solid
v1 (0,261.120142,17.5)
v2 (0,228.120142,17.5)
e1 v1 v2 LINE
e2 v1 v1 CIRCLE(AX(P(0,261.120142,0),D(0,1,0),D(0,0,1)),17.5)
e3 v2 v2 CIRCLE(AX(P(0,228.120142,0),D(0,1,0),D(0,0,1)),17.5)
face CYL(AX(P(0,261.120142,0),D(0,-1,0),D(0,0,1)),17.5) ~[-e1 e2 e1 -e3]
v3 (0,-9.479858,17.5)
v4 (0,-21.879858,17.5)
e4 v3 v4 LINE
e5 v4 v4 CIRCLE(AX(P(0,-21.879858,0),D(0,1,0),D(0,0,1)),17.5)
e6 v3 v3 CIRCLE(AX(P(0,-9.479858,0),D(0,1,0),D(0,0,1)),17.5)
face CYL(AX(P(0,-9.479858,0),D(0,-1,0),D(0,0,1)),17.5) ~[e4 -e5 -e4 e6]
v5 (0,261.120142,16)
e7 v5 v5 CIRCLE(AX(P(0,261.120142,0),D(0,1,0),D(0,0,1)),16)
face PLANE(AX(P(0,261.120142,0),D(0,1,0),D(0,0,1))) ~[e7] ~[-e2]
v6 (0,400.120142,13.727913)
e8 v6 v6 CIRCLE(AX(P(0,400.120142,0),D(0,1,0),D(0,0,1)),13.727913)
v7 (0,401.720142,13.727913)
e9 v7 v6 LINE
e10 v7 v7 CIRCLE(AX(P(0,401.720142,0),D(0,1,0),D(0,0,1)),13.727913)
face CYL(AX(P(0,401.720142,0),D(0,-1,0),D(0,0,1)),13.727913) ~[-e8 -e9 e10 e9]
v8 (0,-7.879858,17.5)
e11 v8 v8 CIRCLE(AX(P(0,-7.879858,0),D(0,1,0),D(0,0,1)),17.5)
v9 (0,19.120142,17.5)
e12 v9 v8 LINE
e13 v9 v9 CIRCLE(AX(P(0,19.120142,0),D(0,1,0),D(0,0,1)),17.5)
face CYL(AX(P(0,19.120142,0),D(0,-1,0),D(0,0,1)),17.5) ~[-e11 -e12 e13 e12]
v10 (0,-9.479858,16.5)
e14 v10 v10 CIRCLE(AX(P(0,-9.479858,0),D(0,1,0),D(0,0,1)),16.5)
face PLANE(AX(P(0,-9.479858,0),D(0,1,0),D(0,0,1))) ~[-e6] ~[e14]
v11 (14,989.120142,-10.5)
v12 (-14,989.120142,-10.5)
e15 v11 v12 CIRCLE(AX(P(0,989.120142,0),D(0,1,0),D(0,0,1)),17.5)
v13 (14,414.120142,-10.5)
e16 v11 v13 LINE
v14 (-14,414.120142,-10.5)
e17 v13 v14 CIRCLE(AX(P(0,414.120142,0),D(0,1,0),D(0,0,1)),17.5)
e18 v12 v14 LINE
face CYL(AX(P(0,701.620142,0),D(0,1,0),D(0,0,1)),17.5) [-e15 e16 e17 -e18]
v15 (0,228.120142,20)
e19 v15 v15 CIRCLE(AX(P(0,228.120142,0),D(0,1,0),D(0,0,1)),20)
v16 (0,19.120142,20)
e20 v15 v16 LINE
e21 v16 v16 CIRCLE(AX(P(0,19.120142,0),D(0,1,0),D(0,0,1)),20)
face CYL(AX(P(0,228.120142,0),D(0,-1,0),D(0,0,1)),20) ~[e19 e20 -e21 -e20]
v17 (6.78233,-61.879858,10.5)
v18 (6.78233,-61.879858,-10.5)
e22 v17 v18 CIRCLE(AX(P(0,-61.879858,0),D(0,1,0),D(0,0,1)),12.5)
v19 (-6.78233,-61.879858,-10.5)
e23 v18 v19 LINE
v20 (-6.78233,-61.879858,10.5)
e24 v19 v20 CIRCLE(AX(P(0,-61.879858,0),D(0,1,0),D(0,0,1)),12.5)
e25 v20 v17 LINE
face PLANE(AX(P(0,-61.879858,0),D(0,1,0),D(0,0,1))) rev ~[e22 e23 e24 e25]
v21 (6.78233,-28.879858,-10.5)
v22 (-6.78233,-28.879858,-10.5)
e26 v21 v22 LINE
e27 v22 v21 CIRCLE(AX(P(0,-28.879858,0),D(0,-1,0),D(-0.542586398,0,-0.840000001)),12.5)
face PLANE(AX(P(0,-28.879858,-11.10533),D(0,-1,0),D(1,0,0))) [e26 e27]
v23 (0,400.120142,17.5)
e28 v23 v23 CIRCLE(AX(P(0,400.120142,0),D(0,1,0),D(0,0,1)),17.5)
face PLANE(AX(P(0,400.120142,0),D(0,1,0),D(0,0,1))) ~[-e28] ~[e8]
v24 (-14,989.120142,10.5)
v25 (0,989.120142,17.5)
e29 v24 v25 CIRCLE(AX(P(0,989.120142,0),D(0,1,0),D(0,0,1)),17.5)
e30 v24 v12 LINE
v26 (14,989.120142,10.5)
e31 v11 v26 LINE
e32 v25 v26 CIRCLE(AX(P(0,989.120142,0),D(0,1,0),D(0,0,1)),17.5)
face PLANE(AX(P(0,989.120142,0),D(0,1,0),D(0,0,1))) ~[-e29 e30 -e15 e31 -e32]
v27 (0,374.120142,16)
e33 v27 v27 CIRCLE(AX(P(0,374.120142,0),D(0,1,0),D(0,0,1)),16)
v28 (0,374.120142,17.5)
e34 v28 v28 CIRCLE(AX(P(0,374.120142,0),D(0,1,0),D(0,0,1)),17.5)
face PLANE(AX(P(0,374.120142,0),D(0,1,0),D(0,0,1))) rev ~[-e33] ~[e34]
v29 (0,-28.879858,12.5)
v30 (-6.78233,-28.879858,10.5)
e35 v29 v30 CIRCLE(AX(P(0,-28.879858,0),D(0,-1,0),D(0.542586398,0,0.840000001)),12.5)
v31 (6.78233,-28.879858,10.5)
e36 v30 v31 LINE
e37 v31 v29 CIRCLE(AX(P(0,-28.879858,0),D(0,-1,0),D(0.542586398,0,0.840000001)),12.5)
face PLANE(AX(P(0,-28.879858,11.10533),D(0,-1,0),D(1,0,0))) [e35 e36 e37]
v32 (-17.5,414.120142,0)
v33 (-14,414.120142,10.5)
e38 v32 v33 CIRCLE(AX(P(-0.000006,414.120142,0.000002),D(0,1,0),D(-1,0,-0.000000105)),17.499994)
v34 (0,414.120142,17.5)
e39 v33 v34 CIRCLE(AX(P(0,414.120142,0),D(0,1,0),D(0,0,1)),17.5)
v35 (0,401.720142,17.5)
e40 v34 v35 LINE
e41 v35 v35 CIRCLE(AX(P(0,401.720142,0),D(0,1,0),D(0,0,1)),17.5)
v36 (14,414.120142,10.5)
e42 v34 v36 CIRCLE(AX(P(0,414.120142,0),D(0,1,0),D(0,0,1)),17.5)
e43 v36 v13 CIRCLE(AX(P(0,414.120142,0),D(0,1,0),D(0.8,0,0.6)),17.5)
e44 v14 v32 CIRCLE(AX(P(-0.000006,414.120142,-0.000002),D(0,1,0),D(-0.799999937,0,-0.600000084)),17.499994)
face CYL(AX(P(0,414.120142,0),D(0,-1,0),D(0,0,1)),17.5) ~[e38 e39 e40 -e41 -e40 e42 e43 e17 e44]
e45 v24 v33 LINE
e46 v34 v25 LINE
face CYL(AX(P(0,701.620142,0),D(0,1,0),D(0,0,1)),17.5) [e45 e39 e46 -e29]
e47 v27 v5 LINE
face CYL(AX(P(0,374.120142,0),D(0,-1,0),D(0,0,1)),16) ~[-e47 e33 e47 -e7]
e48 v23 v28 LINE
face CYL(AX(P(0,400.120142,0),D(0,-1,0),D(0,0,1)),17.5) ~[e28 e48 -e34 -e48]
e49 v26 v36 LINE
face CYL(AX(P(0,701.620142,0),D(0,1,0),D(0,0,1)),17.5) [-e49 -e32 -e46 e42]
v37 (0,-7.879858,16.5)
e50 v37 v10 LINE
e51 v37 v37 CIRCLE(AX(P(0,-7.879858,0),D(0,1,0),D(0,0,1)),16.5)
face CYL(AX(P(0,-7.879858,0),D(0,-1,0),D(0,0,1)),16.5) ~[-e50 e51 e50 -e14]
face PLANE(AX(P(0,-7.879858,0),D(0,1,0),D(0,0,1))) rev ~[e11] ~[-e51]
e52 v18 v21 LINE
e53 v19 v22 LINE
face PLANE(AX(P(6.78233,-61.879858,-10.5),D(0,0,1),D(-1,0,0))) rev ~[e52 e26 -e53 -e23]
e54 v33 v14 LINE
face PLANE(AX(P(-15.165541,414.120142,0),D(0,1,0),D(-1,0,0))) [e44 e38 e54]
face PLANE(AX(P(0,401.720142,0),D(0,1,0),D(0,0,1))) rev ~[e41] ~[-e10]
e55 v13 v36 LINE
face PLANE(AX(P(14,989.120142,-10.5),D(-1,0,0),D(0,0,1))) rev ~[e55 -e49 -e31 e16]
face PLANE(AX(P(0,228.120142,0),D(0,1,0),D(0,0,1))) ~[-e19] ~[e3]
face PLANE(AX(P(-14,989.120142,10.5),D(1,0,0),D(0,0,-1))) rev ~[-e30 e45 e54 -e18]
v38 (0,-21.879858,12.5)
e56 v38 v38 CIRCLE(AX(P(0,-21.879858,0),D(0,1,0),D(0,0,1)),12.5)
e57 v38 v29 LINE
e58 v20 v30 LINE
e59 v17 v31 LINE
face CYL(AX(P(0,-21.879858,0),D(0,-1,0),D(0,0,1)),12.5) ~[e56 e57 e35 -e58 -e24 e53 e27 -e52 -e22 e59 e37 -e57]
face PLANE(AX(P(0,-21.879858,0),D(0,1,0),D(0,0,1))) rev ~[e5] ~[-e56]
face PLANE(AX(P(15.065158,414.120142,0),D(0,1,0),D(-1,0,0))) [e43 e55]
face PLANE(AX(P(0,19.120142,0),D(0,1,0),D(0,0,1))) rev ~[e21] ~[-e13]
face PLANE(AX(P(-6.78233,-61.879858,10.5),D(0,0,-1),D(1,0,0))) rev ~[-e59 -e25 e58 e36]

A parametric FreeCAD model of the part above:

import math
import FreeCAD as App
import Part
import Sketcher
Q = App.Units.Quantity


def add_polygon(sketch, points):
    """Adds a closed chain of lines whose ends are joined by coincident constraints."""
    first, n = sketch.GeometryCount, len(points)
    for a, b in zip(points, points[1:] + points[:1]):
        sketch.addGeometry(Part.LineSegment(App.Vector(*a, 0), App.Vector(*b, 0)), False)
    for i in range(n):
        sketch.addConstraint(Sketcher.Constraint("Coincident", first + i, 2, first + (i + 1) % n, 1))

doc = App.newDocument("Part")
params = doc.addObject("Spreadsheet::Sheet", "Params")
for row, (alias, value) in enumerate([
    ("sketch1_width", "40 mm"),
    ("sketch1_width2", "81 mm"),
    ("sketch1_width3", "27 mm"),
    ("sketch1_height", "5 mm"),
    ("sketch1_height2", "1 mm"),
    ("revolution_angle", "360 deg"),
    ("sketch2_radius", "12.5 mm"),
    ("pocket1_length", "33 mm"),
    ("sketch3_width", "395 mm"),
    ("sketch3_width2", "26 mm"),
    ("sketch3_width3", "113 mm"),
    ("sketch3_width4", "33 mm"),
    ("sketch3_width5", "209 mm"),
    ("revolution2_angle", "360 deg"),
    ("sketch4_width", "575 mm"),
    ("sketch4_height", "17.5 mm"),
    ("revolution3_angle", "360 deg"),
    ("sketch5_radius", "17.5 mm"),
    ("sketch5_height", "21 mm"),
    ("pocket2_length", "575 mm"),
], start=1):
    params.set(f"A{row}", alias)
    params.set(f"B{row}", "=" + value)
    params.setAlias(f"B{row}", alias)

body = doc.addObject("PartDesign::Body", "Body")

# Sketch on YZ plane
sketch1 = body.newObject("Sketcher::SketchObject", "Sketch")
sketch1.AttachmentSupport = (doc.getObject("YZ_Plane"), [""])
sketch1.MapMode = "FlatFace"
add_polygon(sketch1, [(-9.479858, 17.5), (-21.879858, 17.5), (-21.879858, 12.5), (-61.879858, 12.5), (-61.879858, 0), (19.120142, 0), (19.120142, 17.5), (-7.879858, 17.5), (-7.879858, 16.5), (-9.479858, 16.5)])  # lines 0-9
sketch1.addConstraint([
    Sketcher.Constraint("Horizontal", 0),
    Sketcher.Constraint("Vertical", 1),
    Sketcher.Constraint("Horizontal", 2),
    Sketcher.Constraint("Vertical", 3),
    Sketcher.Constraint("Horizontal", 4),
    Sketcher.Constraint("Vertical", 5),
    Sketcher.Constraint("Horizontal", 6),
    Sketcher.Constraint("Vertical", 7),
    Sketcher.Constraint("Horizontal", 8),
    Sketcher.Constraint("Vertical", 9),
    Sketcher.Constraint("PointOnObject", 3, 2, -1),
    Sketcher.Constraint("Horizontal", 0, 2, 5, 2),
    Sketcher.Constraint("DistanceX", 2, 2, 2, 1, Q("40 mm")),
    Sketcher.Constraint("DistanceX", 4, 1, 4, 2, Q("81 mm")),
    Sketcher.Constraint("DistanceX", 6, 2, 6, 1, Q("27 mm")),
    Sketcher.Constraint("DistanceY", 1, 2, 1, 1, Q("5 mm")),
    Sketcher.Constraint("DistanceY", 7, 2, 7, 1, Q("1 mm")),
    Sketcher.Constraint("DistanceX", 0, 2, 0, 1, Q("12.4 mm")),
    Sketcher.Constraint("DistanceY", 3, 2, 3, 1, Q("12.5 mm")),
    Sketcher.Constraint("DistanceX", 0, 2, -1, 1, Q("21.879858 mm")),
])
sketch1.setExpression("Constraints[22]", "Params.sketch1_width")
sketch1.setExpression("Constraints[23]", "Params.sketch1_width2")
sketch1.setExpression("Constraints[24]", "Params.sketch1_width3")
sketch1.setExpression("Constraints[25]", "Params.sketch1_height")
sketch1.setExpression("Constraints[26]", "Params.sketch1_height2")
revolution = body.newObject("PartDesign::Revolution", "Revolution")
revolution.Profile = sketch1
revolution.ReferenceAxis = (sketch1, ["H_Axis"])
revolution.setExpression("Angle", "Params.revolution_angle")

# Sketch on XZ plane
sketch2 = body.newObject("Sketcher::SketchObject", "Sketch001")
sketch2.AttachmentSupport = (doc.getObject("XZ_Plane"), [""])
sketch2.MapMode = "FlatFace"
sketch2.AttachmentOffset = App.Placement(App.Vector(0, 0, 61.879858), App.Rotation())
sketch2.addGeometry([
    Part.ArcOfCircle(Part.Circle(App.Vector(0, 0, 0), App.Vector(0, 0, 1), 12.5), math.radians(57.14012), math.radians(122.85988)),
    Part.LineSegment(App.Vector(-6.78233, 10.5, 0), App.Vector(6.78233, 10.5, 0)),
    Part.LineSegment(App.Vector(6.78233, -10.5, 0), App.Vector(-6.78233, -10.5, 0)),
    Part.ArcOfCircle(Part.Circle(App.Vector(0, 0, 0), App.Vector(0, 0, 1), 12.5), math.radians(-122.85988), math.radians(-57.14012)),
], False)
sketch2.addConstraint([
    Sketcher.Constraint("Coincident", 0, 1, 1, 2),
    Sketcher.Constraint("Coincident", 1, 1, 0, 2),
    Sketcher.Constraint("Coincident", 2, 1, 3, 2),
    Sketcher.Constraint("Coincident", 3, 1, 2, 2),
    Sketcher.Constraint("Horizontal", 1),
    Sketcher.Constraint("Horizontal", 2),
    Sketcher.Constraint("Coincident", 0, 3, -1, 1),
    Sketcher.Constraint("Coincident", 3, 3, -1, 1),
    Sketcher.Constraint("Equal", 0, 3),
    Sketcher.Constraint("Vertical", 0, 1, 2, 1),
    Sketcher.Constraint("Radius", 0, Q("12.5 mm")),
    Sketcher.Constraint("DistanceY", 2, 1, 0, 1, Q("21 mm")),
])
sketch2.setExpression("Constraints[10]", "Params.sketch2_radius")
pocket1 = body.newObject("PartDesign::Pocket", "Pocket")
pocket1.Profile = sketch2
pocket1.setExpression("Length", "Params.pocket1_length")

# Sketch on YZ plane
sketch3 = body.newObject("Sketcher::SketchObject", "Sketch002")
sketch3.AttachmentSupport = (doc.getObject("YZ_Plane"), [""])
sketch3.MapMode = "FlatFace"
add_polygon(sketch3, [(19.120142, 20), (19.120142, 0), (414.120142, 0), (414.120142, 17.5), (401.720142, 17.5), (401.720142, 13.727913), (400.120142, 13.727913), (400.120142, 17.5), (374.120142, 17.5), (374.120142, 16), (261.120142, 16), (261.120142, 17.5), (228.120142, 17.5), (228.120142, 20)])  # lines 0-13
sketch3.addConstraint([
    Sketcher.Constraint("Vertical", 0),
    Sketcher.Constraint("Horizontal", 1),
    Sketcher.Constraint("Vertical", 2),
    Sketcher.Constraint("Horizontal", 3),
    Sketcher.Constraint("Vertical", 4),
    Sketcher.Constraint("Horizontal", 5),
    Sketcher.Constraint("Vertical", 6),
    Sketcher.Constraint("Horizontal", 7),
    Sketcher.Constraint("Vertical", 8),
    Sketcher.Constraint("Horizontal", 9),
    Sketcher.Constraint("Vertical", 10),
    Sketcher.Constraint("Horizontal", 11),
    Sketcher.Constraint("Vertical", 12),
    Sketcher.Constraint("Horizontal", 13),
    Sketcher.Constraint("PointOnObject", 0, 2, -1),
    Sketcher.Constraint("Horizontal", 3, 2, 6, 2),
    Sketcher.Constraint("Horizontal", 7, 2, 10, 2),
    Sketcher.Constraint("DistanceX", 1, 1, 1, 2, Q("395 mm")),
    Sketcher.Constraint("DistanceX", 7, 2, 7, 1, Q("26 mm")),
    Sketcher.Constraint("DistanceX", 9, 2, 9, 1, Q("113 mm")),
    Sketcher.Constraint("DistanceX", 11, 2, 11, 1, Q("33 mm")),
    Sketcher.Constraint("DistanceX", 13, 2, 13, 1, Q("209 mm")),
    Sketcher.Constraint("DistanceY", 0, 2, 0, 1, Q("20 mm")),
    Sketcher.Constraint("DistanceX", 3, 2, 3, 1, Q("12.4 mm")),
    Sketcher.Constraint("DistanceY", 2, 1, 2, 2, Q("17.5 mm")),
    Sketcher.Constraint("DistanceY", 8, 2, 8, 1, Q("1.5 mm")),
    Sketcher.Constraint("DistanceY", 4, 2, 4, 1, Q("3.772087 mm")),
    Sketcher.Constraint("DistanceX", -1, 1, 1, 2, Q("414.120142 mm")),
])
sketch3.setExpression("Constraints[31]", "Params.sketch3_width")
sketch3.setExpression("Constraints[32]", "Params.sketch3_width2")
sketch3.setExpression("Constraints[33]", "Params.sketch3_width3")
sketch3.setExpression("Constraints[34]", "Params.sketch3_width4")
sketch3.setExpression("Constraints[35]", "Params.sketch3_width5")
revolution2 = body.newObject("PartDesign::Revolution", "Revolution001")
revolution2.Profile = sketch3
revolution2.ReferenceAxis = (sketch3, ["H_Axis"])
revolution2.setExpression("Angle", "Params.revolution2_angle")

# Sketch on YZ plane
sketch4 = body.newObject("Sketcher::SketchObject", "Sketch003")
sketch4.AttachmentSupport = (doc.getObject("YZ_Plane"), [""])
sketch4.MapMode = "FlatFace"
add_polygon(sketch4, [(414.120142, 17.5), (414.120142, 0), (989.120142, 0), (989.120142, 17.5)])  # lines 0-3
sketch4.addConstraint([
    Sketcher.Constraint("Vertical", 0),
    Sketcher.Constraint("Horizontal", 1),
    Sketcher.Constraint("Vertical", 2),
    Sketcher.Constraint("Horizontal", 3),
    Sketcher.Constraint("PointOnObject", 0, 2, -1),
    Sketcher.Constraint("DistanceX", 1, 1, 1, 2, Q("575 mm")),
    Sketcher.Constraint("DistanceY", 0, 2, 0, 1, Q("17.5 mm")),
    Sketcher.Constraint("DistanceX", -1, 1, 0, 2, Q("414.120142 mm")),
])
sketch4.setExpression("Constraints[9]", "Params.sketch4_width")
sketch4.setExpression("Constraints[10]", "Params.sketch4_height")
revolution3 = body.newObject("PartDesign::Revolution", "Revolution002")
revolution3.Profile = sketch4
revolution3.ReferenceAxis = (sketch4, ["H_Axis"])
revolution3.setExpression("Angle", "Params.revolution3_angle")

# Sketch on XZ plane
sketch5 = body.newObject("Sketcher::SketchObject", "Sketch004")
sketch5.AttachmentSupport = (doc.getObject("XZ_Plane"), [""])
sketch5.MapMode = "FlatFace"
sketch5.AttachmentOffset = App.Placement(App.Vector(0, 0, -989.120142), App.Rotation())
sketch5.addGeometry([
    Part.ArcOfCircle(Part.Circle(App.Vector(-0.000006, 0.000002, 0), App.Vector(0, 0, 1), 17.499994), math.radians(143.130096), math.radians(180.000006)),  # 0
    Part.LineSegment(App.Vector(-14, 10.5, 0), App.Vector(-14, -10.5, 0)),  # 1
    Part.ArcOfCircle(Part.Circle(App.Vector(-0.000006, -0.000002, 0), App.Vector(0, 0, 1), 17.499994), math.radians(179.999994), math.radians(216.869904)),  # 2
    Part.LineSegment(App.Vector(14, -10.5, 0), App.Vector(14, 10.5, 0)),  # 3
    Part.ArcOfCircle(Part.Circle(App.Vector(0, 0, 0), App.Vector(0, 0, 1), 17.5), math.radians(-36.869898), math.radians(36.869898)),  # 4
], False)
sketch5.addConstraint([
    Sketcher.Constraint("Coincident", 0, 1, 1, 1),
    Sketcher.Constraint("Coincident", 1, 2, 2, 2),
    Sketcher.Constraint("Tangent", 2, 1, 0, 2),
    Sketcher.Constraint("Coincident", 3, 1, 4, 1),
    Sketcher.Constraint("Coincident", 4, 2, 3, 2),
    Sketcher.Constraint("Vertical", 1),
    Sketcher.Constraint("Vertical", 3),
    Sketcher.Constraint("Coincident", 0, 3, -1, 1),
    Sketcher.Constraint("Coincident", 4, 3, -1, 1),
    Sketcher.Constraint("Equal", 0, 2),
    Sketcher.Constraint("Symmetric", 0, 1, 3, 1, -1, 1),
    Sketcher.Constraint("PointOnObject", 2, 1, -1),
    Sketcher.Constraint("Radius", 4, Q("17.5 mm")),
    Sketcher.Constraint("DistanceY", 1, 2, 1, 1, Q("21 mm")),
])
sketch5.setExpression("Constraints[12]", "Params.sketch5_radius")
sketch5.setExpression("Constraints[13]", "Params.sketch5_height")
pocket2 = body.newObject("PartDesign::Pocket", "Pocket001")
pocket2.Profile = sketch5
pocket2.setExpression("Length", "Params.pocket2_length")
pocket2.Reversed = True

doc.recompute()
